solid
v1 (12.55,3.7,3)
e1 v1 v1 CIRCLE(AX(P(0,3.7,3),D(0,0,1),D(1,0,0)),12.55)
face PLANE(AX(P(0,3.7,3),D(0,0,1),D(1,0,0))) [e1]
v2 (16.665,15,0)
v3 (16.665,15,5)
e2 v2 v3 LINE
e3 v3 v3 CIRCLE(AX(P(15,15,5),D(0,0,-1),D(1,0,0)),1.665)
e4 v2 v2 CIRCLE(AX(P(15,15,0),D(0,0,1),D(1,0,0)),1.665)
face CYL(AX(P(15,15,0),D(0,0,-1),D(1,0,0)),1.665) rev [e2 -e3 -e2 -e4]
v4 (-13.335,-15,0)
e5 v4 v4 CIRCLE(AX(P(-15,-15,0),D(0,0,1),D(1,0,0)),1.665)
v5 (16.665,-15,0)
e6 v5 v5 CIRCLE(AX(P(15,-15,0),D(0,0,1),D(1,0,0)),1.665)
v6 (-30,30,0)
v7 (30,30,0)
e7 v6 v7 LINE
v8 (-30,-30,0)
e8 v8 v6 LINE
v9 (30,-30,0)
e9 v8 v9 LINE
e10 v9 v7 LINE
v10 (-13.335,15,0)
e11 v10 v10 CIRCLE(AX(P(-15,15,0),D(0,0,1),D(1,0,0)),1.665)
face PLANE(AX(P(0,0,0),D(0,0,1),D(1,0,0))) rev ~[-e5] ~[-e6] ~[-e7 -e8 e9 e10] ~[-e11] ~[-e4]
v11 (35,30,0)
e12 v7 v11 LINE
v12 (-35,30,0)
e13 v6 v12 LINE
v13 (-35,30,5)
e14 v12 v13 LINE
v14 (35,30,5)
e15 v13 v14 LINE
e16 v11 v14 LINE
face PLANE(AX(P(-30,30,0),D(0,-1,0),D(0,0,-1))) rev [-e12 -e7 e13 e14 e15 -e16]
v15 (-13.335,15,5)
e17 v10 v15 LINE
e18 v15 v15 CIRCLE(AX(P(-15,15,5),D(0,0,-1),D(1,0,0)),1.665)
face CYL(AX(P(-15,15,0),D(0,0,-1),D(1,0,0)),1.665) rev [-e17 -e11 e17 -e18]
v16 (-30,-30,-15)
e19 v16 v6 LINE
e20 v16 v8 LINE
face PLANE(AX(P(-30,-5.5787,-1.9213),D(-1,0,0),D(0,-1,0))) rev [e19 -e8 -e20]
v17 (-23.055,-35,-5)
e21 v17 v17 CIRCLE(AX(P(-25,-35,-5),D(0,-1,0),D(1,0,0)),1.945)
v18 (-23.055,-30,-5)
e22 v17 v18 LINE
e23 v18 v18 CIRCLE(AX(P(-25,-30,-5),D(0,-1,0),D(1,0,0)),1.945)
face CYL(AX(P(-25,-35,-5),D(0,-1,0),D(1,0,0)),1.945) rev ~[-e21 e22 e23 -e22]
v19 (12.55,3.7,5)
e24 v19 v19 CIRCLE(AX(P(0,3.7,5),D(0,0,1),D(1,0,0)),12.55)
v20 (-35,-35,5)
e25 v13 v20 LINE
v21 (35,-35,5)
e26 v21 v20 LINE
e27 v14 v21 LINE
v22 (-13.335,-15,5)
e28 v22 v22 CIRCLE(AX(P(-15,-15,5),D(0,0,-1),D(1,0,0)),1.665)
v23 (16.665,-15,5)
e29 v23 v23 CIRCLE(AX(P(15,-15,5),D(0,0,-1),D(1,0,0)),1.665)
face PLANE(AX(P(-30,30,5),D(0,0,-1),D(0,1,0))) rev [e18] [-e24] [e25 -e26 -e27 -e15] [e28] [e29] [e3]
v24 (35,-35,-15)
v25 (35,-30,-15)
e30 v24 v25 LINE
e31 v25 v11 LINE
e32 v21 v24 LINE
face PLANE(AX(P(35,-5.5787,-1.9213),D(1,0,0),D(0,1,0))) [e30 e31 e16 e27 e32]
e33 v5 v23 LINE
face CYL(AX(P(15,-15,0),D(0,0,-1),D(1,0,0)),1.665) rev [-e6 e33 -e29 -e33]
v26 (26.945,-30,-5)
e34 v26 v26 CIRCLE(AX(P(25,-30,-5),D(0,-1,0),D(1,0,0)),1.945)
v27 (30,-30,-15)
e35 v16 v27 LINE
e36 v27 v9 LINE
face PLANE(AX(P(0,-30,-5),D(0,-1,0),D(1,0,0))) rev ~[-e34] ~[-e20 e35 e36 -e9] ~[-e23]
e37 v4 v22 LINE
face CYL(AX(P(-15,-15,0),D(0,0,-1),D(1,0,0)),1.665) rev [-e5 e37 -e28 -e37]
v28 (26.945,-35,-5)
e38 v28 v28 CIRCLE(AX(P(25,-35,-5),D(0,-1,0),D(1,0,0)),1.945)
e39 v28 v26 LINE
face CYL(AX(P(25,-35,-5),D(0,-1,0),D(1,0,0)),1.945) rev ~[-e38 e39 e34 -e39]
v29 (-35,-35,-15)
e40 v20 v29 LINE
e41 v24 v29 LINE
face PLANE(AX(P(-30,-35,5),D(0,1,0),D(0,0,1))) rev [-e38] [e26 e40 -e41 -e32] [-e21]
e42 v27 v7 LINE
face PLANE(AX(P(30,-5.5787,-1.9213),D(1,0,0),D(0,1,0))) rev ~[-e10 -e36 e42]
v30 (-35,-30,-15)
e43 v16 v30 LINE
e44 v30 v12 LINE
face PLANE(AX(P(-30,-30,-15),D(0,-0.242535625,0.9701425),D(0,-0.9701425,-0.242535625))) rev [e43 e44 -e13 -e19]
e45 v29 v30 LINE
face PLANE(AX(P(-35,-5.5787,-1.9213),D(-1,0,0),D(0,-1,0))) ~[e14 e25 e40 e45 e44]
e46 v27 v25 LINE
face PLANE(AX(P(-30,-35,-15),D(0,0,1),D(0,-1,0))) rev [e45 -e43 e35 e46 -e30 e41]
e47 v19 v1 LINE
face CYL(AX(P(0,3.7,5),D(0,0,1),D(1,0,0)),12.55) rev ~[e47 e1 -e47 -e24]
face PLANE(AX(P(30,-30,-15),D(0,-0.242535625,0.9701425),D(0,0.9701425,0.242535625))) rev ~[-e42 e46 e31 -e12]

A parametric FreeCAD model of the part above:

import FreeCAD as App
import Part
import Sketcher
from FreeCAD import Vector
Q = App.Units.Quantity

doc = App.newDocument("Part")
body = doc.addObject("PartDesign::Body", "Body")

# Sketch on XY plane
sketch1 = body.newObject("Sketcher::SketchObject", "Sketch")
sketch1.AttachmentSupport = (doc.getObject("XY_Plane"), [""])
sketch1.MapMode = "FlatFace"
sketch1.addGeometry([
    Part.LineSegment(Vector(-30, 30, 0), Vector(-30, -30, 0)),  # 0
    Part.LineSegment(Vector(-30, -30, 0), Vector(30, -30, 0)),  # 1
    Part.LineSegment(Vector(30, -30, 0), Vector(30, 30, 0)),  # 2
    Part.LineSegment(Vector(30, 30, 0), Vector(-30, 30, 0)),  # 3
    Part.Circle(Vector(-15, -15, 0), Vector(0, 0, 1), 1.7),  # 4
    Part.Circle(Vector(15, -15, 0), Vector(0, 0, 1), 1.7),  # 5
    Part.Circle(Vector(-15, 15, 0), Vector(0, 0, 1), 1.7),  # 6
    Part.Circle(Vector(15, 15, 0), Vector(0, 0, 1), 1.7),  # 7
], False)
sketch1.addConstraint([
    Sketcher.Constraint("Coincident", 0, 2, 1, 1),
    Sketcher.Constraint("Coincident", 1, 2, 2, 1),
    Sketcher.Constraint("Coincident", 2, 2, 3, 1),
    Sketcher.Constraint("Coincident", 3, 2, 0, 1),
    Sketcher.Constraint("Vertical", 0),
    Sketcher.Constraint("Horizontal", 1),
    Sketcher.Constraint("Vertical", 2),
    Sketcher.Constraint("Horizontal", 3),
    Sketcher.Constraint("Equal", 4, 5),
    Sketcher.Constraint("Equal", 5, 6),
    Sketcher.Constraint("Equal", 6, 7),
    Sketcher.Constraint("Symmetric", 5, 3, 6, 3, -1, 1),
    Sketcher.Constraint("Symmetric", 4, 3, 7, 3, -1, 1),
    Sketcher.Constraint("Symmetric", 0, 2, 2, 2, -1, 1),
    Sketcher.Constraint("Symmetric", 4, 3, 5, 3, -2),
    Sketcher.Constraint("Equal", 3, 0),
    Sketcher.Constraint("Diameter", 4, Q("3.33 mm")),
    Sketcher.Constraint("DistanceX", 1, 1, 1, 2, Q("60 mm")),
    Sketcher.Constraint("DistanceX", 4, 3, -1, 1, Q("15 mm")),
    Sketcher.Constraint("DistanceY", 4, 3, -1, 1, Q("15 mm")),
])
pad1 = body.newObject("PartDesign::Pad", "Pad")
pad1.Profile = sketch1
pad1.Length = 5

# Sketch on XZ plane
sketch2 = body.newObject("Sketcher::SketchObject", "Sketch001")
sketch2.AttachmentSupport = (doc.getObject("XZ_Plane"), [""])
sketch2.MapMode = "FlatFace"
sketch2.AttachmentOffset = App.Placement(Vector(0, 0, 30), App.Rotation())
sketch2.addGeometry([
    Part.LineSegment(Vector(-30, 5, 0), Vector(-30, -15, 0)),
    Part.LineSegment(Vector(-30, -15, 0), Vector(30, -15, 0)),
    Part.LineSegment(Vector(30, -15, 0), Vector(30, 5, 0)),
    Part.LineSegment(Vector(30, 5, 0), Vector(-30, 5, 0)),
], False)
sketch2.addConstraint([
    Sketcher.Constraint("Coincident", 0, 2, 1, 1),
    Sketcher.Constraint("Coincident", 1, 2, 2, 1),
    Sketcher.Constraint("Coincident", 2, 2, 3, 1),
    Sketcher.Constraint("Coincident", 3, 2, 0, 1),
    Sketcher.Constraint("Vertical", 0),
    Sketcher.Constraint("Horizontal", 1),
    Sketcher.Constraint("Vertical", 2),
    Sketcher.Constraint("Horizontal", 3),
    Sketcher.Constraint("DistanceX", 1, 1, 1, 2, Q("60 mm")),
    Sketcher.Constraint("DistanceY", 0, 2, 0, 1, Q("20 mm")),
    Sketcher.Constraint("DistanceX", 0, 2, -1, 1, Q("30 mm")),
    Sketcher.Constraint("DistanceY", 0, 2, -1, 1, Q("15 mm")),
])
pad2 = body.newObject("PartDesign::Pad", "Pad001")
pad2.Profile = sketch2
pad2.Length = 5

# Sketch on YZ plane
sketch3 = body.newObject("Sketcher::SketchObject", "Sketch002")
sketch3.AttachmentSupport = (doc.getObject("YZ_Plane"), [""])
sketch3.MapMode = "FlatFace"
sketch3.AttachmentOffset = App.Placement(Vector(0, 0, 30), App.Rotation())
sketch3.addGeometry([
    Part.LineSegment(Vector(-30, -15, 0), Vector(30, 0, 0)),  # 0
    Part.LineSegment(Vector(30, 0, 0), Vector(30, 5, 0)),  # 1
    Part.LineSegment(Vector(30, 5, 0), Vector(-35, 5, 0)),  # 2
    Part.LineSegment(Vector(-35, 5, 0), Vector(-35, -15, 0)),  # 3
    Part.LineSegment(Vector(-35, -15, 0), Vector(-30, -15, 0)),  # 4
], False)
sketch3.addConstraint([
    Sketcher.Constraint("Coincident", 0, 2, 1, 1),
    Sketcher.Constraint("Coincident", 1, 2, 2, 1),
    Sketcher.Constraint("Coincident", 2, 2, 3, 1),
    Sketcher.Constraint("Coincident", 3, 2, 4, 1),
    Sketcher.Constraint("Coincident", 4, 2, 0, 1),
    Sketcher.Constraint("Vertical", 1),
    Sketcher.Constraint("Horizontal", 2),
    Sketcher.Constraint("Vertical", 3),
    Sketcher.Constraint("Horizontal", 4),
    Sketcher.Constraint("PointOnObject", 0, 2, -1),
    Sketcher.Constraint("Equal", 4, 1),
    Sketcher.Constraint("DistanceX", 2, 2, 2, 1, Q("65 mm")),
    Sketcher.Constraint("DistanceX", 4, 1, 4, 2, Q("5 mm")),
    Sketcher.Constraint("DistanceY", 3, 2, 3, 1, Q("20 mm")),
    Sketcher.Constraint("DistanceX", -1, 1, 0, 2, Q("30 mm")),
])
pad3 = body.newObject("PartDesign::Pad", "Pad002")
pad3.Profile = sketch3
pad3.Length = 5
body2 = doc.addObject("PartDesign::Body", "Body001")
doc.recompute()

body2.BaseFeature = body
doc.recompute()

mirroring = doc.addObject("Part::Mirroring", "Mirroring")
mirroring.Source = body
mirroring.Base = Vector(0, 0, 0)
mirroring.Normal = Vector(1, 0, 0)
body3 = doc.addObject("PartDesign::Body", "Body002")
body3.BaseFeature = mirroring
boolean = body2.newObject("PartDesign::Boolean", "Boolean")
boolean.Type = "Fuse"
boolean.addObjects([body3])
doc.recompute()

# Sketch on XZ plane
sketch4 = body2.newObject("Sketcher::SketchObject", "Sketch003")
sketch4.AttachmentSupport = (doc.getObject("XZ_Plane001"), [""])
sketch4.MapMode = "FlatFace"
sketch4.AttachmentOffset = App.Placement(Vector(0, 0, 35), App.Rotation())
sketch4.addGeometry([
    Part.Circle(Vector(-25, -5, 0), Vector(0, 0, 1), 1.9),
    Part.Circle(Vector(25, -5, 0), Vector(0, 0, 1), 1.9),
], False)
sketch4.addConstraint([
    Sketcher.Constraint("Equal", 0, 1),
    Sketcher.Constraint("Symmetric", 0, 3, 1, 3, -2),
    Sketcher.Constraint("Diameter", 0, Q("3.89 mm")),
    Sketcher.Constraint("DistanceX", 0, 3, -1, 1, Q("25 mm")),
    Sketcher.Constraint("DistanceY", 0, 3, -1, 1, Q("5 mm")),
])
pocket1 = body2.newObject("PartDesign::Pocket", "Pocket")
pocket1.Profile = sketch4
pocket1.Type = "ThroughAll"

# Sketch on XY plane
sketch5 = body2.newObject("Sketcher::SketchObject", "Sketch004")
sketch5.AttachmentSupport = (doc.getObject("XY_Plane001"), [""])
sketch5.MapMode = "FlatFace"
sketch5.AttachmentOffset = App.Placement(Vector(0, 0, 5), App.Rotation())
sketch5.addGeometry(Part.Circle(Vector(0, 4, 0), Vector(0, 0, 1), 13), False)
sketch5.addConstraint([
    Sketcher.Constraint("PointOnObject", 0, 3, -2),
    Sketcher.Constraint("Diameter", 0, Q("25.1 mm")),
    Sketcher.Constraint("DistanceY", -1, 1, 0, 3, Q("3.7 mm")),
])
pocket2 = body2.newObject("PartDesign::Pocket", "Pocket001")
pocket2.Profile = sketch5
pocket2.Length = 2
mirroring.Visibility = False

doc.recompute()
